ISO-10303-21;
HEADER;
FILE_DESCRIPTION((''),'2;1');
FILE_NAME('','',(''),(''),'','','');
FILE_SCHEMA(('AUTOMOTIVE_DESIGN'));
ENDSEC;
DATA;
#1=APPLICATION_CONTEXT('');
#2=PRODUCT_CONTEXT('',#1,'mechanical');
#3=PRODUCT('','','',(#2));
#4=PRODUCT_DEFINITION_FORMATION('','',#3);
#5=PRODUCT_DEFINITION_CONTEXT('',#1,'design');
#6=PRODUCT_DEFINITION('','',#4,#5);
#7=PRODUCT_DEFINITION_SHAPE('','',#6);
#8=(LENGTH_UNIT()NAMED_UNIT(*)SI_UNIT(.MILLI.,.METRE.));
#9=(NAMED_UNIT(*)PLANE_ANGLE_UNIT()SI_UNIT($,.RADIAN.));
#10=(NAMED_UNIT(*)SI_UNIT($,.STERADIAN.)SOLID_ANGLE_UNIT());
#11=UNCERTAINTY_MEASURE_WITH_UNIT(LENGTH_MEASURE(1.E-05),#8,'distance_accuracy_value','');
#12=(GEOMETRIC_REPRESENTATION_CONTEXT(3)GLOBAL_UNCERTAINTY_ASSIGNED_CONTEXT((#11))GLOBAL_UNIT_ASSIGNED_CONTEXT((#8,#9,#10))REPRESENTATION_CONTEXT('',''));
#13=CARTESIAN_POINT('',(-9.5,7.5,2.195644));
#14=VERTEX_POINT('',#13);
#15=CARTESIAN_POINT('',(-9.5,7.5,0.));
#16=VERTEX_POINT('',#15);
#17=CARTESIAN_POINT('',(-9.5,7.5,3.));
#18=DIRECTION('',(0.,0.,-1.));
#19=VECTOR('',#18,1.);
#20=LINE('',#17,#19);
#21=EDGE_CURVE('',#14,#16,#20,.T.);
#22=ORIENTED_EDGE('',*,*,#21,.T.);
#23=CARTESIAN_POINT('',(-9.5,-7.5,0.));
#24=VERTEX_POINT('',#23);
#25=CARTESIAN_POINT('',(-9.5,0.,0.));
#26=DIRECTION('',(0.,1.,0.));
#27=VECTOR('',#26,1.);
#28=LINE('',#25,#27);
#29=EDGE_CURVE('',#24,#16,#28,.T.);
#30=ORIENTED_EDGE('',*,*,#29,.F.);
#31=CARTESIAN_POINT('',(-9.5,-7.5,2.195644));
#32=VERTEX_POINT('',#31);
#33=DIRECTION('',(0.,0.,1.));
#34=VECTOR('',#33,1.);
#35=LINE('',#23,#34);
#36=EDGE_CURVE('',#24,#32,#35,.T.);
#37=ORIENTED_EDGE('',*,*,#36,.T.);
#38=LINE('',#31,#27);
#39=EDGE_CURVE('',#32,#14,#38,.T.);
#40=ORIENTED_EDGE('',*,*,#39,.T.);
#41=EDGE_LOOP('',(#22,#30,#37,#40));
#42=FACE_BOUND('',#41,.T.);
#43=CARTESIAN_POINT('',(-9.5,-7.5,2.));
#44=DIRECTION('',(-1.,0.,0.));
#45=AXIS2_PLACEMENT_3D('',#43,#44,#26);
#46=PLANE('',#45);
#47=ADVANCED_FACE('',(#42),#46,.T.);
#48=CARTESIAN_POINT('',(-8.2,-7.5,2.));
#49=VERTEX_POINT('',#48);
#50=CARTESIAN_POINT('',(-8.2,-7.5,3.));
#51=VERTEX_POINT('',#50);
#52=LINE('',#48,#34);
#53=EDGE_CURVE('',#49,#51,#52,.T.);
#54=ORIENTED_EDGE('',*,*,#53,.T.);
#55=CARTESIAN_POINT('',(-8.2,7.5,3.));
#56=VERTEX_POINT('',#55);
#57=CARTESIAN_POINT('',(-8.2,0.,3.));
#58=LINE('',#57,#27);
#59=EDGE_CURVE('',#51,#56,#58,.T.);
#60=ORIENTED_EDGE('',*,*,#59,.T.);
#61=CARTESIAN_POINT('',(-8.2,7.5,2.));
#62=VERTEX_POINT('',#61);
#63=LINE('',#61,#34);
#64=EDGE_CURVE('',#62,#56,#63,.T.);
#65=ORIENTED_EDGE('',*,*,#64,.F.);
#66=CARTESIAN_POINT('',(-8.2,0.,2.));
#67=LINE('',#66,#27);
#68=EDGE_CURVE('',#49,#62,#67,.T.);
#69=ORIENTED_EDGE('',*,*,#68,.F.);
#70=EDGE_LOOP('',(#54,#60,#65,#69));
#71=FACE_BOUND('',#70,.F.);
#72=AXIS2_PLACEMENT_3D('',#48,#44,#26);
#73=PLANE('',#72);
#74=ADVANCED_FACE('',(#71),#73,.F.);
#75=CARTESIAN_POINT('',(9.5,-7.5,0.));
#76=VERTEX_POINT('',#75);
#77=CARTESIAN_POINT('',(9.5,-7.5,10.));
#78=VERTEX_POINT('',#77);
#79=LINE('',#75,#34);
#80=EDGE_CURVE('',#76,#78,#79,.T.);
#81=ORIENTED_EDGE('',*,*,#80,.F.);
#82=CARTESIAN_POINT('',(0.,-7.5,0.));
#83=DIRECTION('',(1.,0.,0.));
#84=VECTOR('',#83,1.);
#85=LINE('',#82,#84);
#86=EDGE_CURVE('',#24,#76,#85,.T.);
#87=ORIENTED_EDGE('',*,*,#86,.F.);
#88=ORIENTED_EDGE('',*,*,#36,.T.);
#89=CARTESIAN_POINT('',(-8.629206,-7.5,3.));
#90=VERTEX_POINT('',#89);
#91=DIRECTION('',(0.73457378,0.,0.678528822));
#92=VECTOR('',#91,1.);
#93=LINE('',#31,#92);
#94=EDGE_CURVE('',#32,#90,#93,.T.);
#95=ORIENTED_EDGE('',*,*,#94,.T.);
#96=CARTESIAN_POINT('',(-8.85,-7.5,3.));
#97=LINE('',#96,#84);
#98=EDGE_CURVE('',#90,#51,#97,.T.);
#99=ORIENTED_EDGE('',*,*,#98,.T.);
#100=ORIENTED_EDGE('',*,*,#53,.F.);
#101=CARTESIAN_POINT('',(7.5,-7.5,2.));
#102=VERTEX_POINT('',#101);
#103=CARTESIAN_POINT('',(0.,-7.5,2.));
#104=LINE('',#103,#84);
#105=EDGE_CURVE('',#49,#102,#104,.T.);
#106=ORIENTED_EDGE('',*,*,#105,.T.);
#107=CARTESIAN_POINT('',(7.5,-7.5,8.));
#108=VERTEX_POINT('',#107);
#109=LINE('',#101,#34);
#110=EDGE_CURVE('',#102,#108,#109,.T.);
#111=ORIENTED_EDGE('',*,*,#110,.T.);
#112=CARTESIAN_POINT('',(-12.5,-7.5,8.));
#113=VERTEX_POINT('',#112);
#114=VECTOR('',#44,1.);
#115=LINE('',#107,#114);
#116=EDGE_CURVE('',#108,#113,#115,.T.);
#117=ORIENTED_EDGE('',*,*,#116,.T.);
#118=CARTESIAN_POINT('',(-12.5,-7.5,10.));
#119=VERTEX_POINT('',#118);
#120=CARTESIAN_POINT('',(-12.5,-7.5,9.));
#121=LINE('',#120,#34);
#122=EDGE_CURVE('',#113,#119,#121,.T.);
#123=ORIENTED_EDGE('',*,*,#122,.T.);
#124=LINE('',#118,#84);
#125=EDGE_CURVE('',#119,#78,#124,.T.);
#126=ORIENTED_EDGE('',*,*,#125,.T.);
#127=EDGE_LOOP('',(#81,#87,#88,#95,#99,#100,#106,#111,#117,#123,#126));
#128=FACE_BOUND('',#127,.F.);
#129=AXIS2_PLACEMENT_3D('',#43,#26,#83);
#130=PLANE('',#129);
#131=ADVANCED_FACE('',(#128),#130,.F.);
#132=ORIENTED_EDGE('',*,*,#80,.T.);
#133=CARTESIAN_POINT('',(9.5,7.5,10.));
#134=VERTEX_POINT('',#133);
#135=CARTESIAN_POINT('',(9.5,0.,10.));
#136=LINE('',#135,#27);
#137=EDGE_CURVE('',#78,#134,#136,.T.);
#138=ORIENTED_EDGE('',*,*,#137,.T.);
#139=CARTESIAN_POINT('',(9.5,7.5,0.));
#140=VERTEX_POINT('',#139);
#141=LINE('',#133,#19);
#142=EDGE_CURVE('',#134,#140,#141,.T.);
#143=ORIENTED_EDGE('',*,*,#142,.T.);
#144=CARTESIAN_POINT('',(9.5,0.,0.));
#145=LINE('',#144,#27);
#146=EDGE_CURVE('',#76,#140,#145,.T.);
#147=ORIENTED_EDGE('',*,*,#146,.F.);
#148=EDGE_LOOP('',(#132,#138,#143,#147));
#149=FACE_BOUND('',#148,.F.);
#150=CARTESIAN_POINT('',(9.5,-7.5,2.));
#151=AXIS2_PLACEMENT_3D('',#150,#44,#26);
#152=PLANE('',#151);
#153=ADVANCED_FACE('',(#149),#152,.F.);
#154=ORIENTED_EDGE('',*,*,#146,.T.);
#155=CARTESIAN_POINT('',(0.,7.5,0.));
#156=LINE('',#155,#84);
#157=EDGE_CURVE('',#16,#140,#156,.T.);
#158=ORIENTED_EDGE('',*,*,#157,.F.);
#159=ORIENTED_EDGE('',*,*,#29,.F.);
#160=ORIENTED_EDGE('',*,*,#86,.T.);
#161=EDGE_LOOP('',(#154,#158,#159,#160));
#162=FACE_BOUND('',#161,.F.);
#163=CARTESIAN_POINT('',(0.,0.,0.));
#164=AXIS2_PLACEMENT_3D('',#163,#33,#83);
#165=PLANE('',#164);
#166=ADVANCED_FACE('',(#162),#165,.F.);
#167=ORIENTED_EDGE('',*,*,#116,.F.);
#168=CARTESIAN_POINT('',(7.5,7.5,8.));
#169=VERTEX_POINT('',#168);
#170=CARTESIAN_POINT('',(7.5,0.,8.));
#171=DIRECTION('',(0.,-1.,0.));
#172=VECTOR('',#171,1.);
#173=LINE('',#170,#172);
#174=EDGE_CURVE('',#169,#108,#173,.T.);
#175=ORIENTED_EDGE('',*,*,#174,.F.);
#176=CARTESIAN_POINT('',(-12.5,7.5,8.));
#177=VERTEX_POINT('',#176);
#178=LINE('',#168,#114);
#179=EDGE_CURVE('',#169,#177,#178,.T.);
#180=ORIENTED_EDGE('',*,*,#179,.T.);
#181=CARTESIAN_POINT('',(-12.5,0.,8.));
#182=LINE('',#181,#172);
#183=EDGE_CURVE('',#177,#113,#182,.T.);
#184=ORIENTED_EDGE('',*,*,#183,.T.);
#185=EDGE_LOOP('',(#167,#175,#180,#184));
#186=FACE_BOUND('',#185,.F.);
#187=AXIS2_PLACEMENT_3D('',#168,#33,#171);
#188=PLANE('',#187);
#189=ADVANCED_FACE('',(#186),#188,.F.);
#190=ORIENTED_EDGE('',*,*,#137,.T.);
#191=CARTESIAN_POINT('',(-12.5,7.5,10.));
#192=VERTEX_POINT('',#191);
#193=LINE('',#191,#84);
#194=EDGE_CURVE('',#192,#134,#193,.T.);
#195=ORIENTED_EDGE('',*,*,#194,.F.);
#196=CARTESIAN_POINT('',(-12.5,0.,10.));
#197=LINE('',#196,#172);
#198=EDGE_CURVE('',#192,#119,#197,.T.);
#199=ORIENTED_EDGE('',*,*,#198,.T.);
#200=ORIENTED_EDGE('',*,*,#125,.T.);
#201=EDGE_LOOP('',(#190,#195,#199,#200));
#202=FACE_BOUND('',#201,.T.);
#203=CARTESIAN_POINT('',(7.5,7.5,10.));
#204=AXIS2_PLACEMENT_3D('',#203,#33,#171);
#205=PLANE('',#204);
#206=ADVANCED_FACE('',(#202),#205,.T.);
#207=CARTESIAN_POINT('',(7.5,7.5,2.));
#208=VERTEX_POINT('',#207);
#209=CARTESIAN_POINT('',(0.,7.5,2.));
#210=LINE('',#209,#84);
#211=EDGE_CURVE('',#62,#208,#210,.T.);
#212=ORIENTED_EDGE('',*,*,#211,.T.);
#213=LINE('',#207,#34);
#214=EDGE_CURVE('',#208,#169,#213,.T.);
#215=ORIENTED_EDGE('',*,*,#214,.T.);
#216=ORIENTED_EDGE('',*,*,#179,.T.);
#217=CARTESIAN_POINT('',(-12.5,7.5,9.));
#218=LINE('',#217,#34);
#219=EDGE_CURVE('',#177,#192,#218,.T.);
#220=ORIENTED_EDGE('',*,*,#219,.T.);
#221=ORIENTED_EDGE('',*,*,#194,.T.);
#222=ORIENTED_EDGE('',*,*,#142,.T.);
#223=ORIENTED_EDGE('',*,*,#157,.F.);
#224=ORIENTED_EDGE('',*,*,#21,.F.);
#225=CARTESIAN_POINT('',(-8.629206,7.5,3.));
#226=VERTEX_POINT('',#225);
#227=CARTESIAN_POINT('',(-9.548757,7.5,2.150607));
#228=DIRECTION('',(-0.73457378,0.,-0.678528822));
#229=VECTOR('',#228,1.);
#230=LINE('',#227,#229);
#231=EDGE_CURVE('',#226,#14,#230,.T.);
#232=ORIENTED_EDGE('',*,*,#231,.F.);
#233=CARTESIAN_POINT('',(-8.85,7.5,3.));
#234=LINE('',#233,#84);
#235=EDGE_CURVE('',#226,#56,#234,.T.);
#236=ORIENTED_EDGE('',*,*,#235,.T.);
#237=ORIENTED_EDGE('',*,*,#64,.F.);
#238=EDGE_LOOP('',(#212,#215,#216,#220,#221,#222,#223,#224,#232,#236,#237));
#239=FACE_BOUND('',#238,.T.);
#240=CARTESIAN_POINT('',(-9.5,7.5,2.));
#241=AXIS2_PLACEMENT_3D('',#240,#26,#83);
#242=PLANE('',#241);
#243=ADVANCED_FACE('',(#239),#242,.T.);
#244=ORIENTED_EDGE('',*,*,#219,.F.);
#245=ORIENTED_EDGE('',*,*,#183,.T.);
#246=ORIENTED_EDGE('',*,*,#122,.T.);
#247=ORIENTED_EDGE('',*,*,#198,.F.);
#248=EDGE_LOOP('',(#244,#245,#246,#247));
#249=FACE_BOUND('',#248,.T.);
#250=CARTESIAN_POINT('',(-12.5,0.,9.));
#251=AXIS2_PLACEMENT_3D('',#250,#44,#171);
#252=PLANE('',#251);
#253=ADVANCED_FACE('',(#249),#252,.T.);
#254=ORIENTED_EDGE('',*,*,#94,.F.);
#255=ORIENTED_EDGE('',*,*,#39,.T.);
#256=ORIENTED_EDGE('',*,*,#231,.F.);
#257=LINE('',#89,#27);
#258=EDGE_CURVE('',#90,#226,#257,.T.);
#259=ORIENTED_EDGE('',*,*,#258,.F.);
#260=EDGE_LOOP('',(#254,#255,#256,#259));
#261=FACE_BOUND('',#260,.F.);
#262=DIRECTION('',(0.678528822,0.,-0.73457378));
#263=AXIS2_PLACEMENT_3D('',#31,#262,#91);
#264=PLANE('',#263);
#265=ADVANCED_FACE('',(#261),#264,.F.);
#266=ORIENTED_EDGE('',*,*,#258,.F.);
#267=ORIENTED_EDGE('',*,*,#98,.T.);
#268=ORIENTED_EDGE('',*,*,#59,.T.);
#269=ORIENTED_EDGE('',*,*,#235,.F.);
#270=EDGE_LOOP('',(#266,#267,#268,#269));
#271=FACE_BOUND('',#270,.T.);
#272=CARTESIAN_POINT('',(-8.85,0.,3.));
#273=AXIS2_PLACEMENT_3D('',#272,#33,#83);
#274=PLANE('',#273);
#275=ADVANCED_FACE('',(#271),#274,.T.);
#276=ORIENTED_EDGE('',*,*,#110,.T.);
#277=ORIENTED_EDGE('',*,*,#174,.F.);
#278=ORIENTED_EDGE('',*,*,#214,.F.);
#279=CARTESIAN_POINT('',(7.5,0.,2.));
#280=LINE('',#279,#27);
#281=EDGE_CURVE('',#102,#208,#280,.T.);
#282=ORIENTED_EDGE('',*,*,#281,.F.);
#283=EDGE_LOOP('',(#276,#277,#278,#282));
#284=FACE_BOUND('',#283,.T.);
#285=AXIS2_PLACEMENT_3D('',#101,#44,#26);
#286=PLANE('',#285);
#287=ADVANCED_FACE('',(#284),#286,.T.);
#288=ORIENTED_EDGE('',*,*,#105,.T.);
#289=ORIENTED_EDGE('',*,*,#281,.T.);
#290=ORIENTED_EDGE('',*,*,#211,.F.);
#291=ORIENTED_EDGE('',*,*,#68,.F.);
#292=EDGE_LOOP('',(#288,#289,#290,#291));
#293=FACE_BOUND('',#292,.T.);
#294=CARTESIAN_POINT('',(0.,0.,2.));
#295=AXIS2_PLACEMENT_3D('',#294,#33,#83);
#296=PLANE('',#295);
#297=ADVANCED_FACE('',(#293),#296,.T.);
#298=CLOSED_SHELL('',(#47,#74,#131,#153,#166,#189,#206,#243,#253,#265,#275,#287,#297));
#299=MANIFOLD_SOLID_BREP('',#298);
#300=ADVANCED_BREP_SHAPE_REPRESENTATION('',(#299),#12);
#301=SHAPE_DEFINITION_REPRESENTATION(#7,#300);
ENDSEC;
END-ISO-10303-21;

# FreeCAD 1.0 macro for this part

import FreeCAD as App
import Part
import Sketcher
from FreeCAD import Vector

doc = App.newDocument("Part")
body = doc.addObject("PartDesign::Body", "Body")

sketch1 = body.newObject("Sketcher::SketchObject", "Sketch")
sketch1.AttachmentSupport = (doc.getObject("XY_Plane"), [""])
sketch1.MapMode = "FlatFace"
sketch1.addGeometry([
    Part.LineSegment(Vector(-10, 8, 0), Vector(-10, -8, 0)),
    Part.LineSegment(Vector(-10, -8, 0), Vector(10, -8, 0)),
    Part.LineSegment(Vector(10, -8, 0), Vector(10, 8, 0)),
    Part.LineSegment(Vector(10, 8, 0), Vector(-10, 8, 0)),
], False)
sketch1.addConstraint([
    Sketcher.Constraint("Coincident", 0, 2, 1, 1),
    Sketcher.Constraint("Coincident", 1, 2, 2, 1),
    Sketcher.Constraint("Coincident", 2, 2, 3, 1),
    Sketcher.Constraint("Coincident", 3, 2, 0, 1),
    Sketcher.Constraint("Vertical", 0),
    Sketcher.Constraint("Horizontal", 1),
    Sketcher.Constraint("Vertical", 2),
    Sketcher.Constraint("Horizontal", 3),
    Sketcher.Constraint("Symmetric", 0, 2, 2, 2, -1, 1),
    Sketcher.Constraint("DistanceX", 1, 1, 1, 2, 19.0),
    Sketcher.Constraint("DistanceY", 0, 2, 0, 1, 15.0),
])
pad1 = body.newObject("PartDesign::Pad", "Pad")
pad1.Profile = sketch1
pad1.Length = 2

sketch2 = body.newObject("Sketcher::SketchObject", "Sketch001")
sketch2.AttachmentSupport = (doc.getObject("XY_Plane"), [""])
sketch2.MapMode = "FlatFace"
sketch2.AttachmentOffset = App.Placement(Vector(0, 0, 2), App.Rotation())
sketch2.addGeometry([
    Part.LineSegment(Vector(7.5, 7.5, 0), Vector(7.5, -7.5, 0)),
    Part.LineSegment(Vector(7.5, -7.5, 0), Vector(9.5, -7.5, 0)),
    Part.LineSegment(Vector(9.5, -7.5, 0), Vector(9.5, 7.5, 0)),
    Part.LineSegment(Vector(9.5, 7.5, 0), Vector(7.5, 7.5, 0)),
], False)
sketch2.addConstraint([
    Sketcher.Constraint("Coincident", 0, 2, 1, 1),
    Sketcher.Constraint("Coincident", 1, 2, 2, 1),
    Sketcher.Constraint("Coincident", 2, 2, 3, 1),
    Sketcher.Constraint("Coincident", 3, 2, 0, 1),
    Sketcher.Constraint("Vertical", 0),
    Sketcher.Constraint("Horizontal", 1),
    Sketcher.Constraint("Vertical", 2),
    Sketcher.Constraint("Horizontal", 3),
    Sketcher.Constraint("DistanceX", 1, 1, 1, 2, 2.0),
    Sketcher.Constraint("DistanceY", 0, 2, 0, 1, 15.0),
    Sketcher.Constraint("DistanceX", -1, 1, 0, 2, 7.5),
    Sketcher.Constraint("DistanceY", 0, 2, -1, 1, 7.5),
])
pad2 = body.newObject("PartDesign::Pad", "Pad001")
pad2.Profile = sketch2
pad2.Length = 8

sketch3 = body.newObject("Sketcher::SketchObject", "Sketch002")
sketch3.AttachmentSupport = (doc.getObject("YZ_Plane"), [""])
sketch3.MapMode = "FlatFace"
sketch3.AttachmentOffset = App.Placement(Vector(0, 0, 7.5), App.Rotation())
sketch3.addGeometry([
    Part.LineSegment(Vector(7.5, 10, 0), Vector(7.5, 8, 0)),
    Part.LineSegment(Vector(7.5, 8, 0), Vector(-7.5, 8, 0)),
    Part.LineSegment(Vector(-7.5, 8, 0), Vector(-7.5, 10, 0)),
    Part.LineSegment(Vector(-7.5, 10, 0), Vector(7.5, 10, 0)),
], False)
sketch3.addConstraint([
    Sketcher.Constraint("Coincident", 0, 2, 1, 1),
    Sketcher.Constraint("Coincident", 1, 2, 2, 1),
    Sketcher.Constraint("Coincident", 2, 2, 3, 1),
    Sketcher.Constraint("Coincident", 3, 2, 0, 1),
    Sketcher.Constraint("Vertical", 0),
    Sketcher.Constraint("Horizontal", 1),
    Sketcher.Constraint("Vertical", 2),
    Sketcher.Constraint("Horizontal", 3),
    Sketcher.Constraint("DistanceX", 1, 2, 1, 1, 15.0),
    Sketcher.Constraint("DistanceY", 0, 2, 0, 1, 2.0),
    Sketcher.Constraint("DistanceY", -1, 1, 0, 2, 8.0),
    Sketcher.Constraint("DistanceX", -1, 1, 0, 2, 7.5),
])
pad3 = body.newObject("PartDesign::Pad", "Pad002")
pad3.Profile = sketch3
pad3.Length = 20
pad3.Reversed = True

sketch4 = body.newObject("Sketcher::SketchObject", "Sketch003")
sketch4.AttachmentSupport = (doc.getObject("XY_Plane"), [""])
sketch4.MapMode = "FlatFace"
sketch4.AttachmentOffset = App.Placement(Vector(0, 0, 2), App.Rotation())
sketch4.addGeometry([
    Part.LineSegment(Vector(-9.5, 7.5, 0), Vector(-9.5, -7.5, 0)),
    Part.LineSegment(Vector(-9.5, -7.5, 0), Vector(-8.2, -7.5, 0)),
    Part.LineSegment(Vector(-8.2, -7.5, 0), Vector(-8.2, 7.5, 0)),
    Part.LineSegment(Vector(-8.2, 7.5, 0), Vector(-9.5, 7.5, 0)),
], False)
sketch4.addConstraint([
    Sketcher.Constraint("Coincident", 0, 2, 1, 1),
    Sketcher.Constraint("Coincident", 1, 2, 2, 1),
    Sketcher.Constraint("Coincident", 2, 2, 3, 1),
    Sketcher.Constraint("Coincident", 3, 2, 0, 1),
    Sketcher.Constraint("Vertical", 0),
    Sketcher.Constraint("Horizontal", 1),
    Sketcher.Constraint("Vertical", 2),
    Sketcher.Constraint("Horizontal", 3),
    Sketcher.Constraint("DistanceY", 0, 2, 0, 1, 15.0),
    Sketcher.Constraint("DistanceX", 1, 1, 1, 2, 1.3),
    Sketcher.Constraint("DistanceX", 0, 2, -1, 1, 9.5),
    Sketcher.Constraint("DistanceY", 0, 2, -1, 1, 7.5),
])
pad4 = body.newObject("PartDesign::Pad", "Pad003")
pad4.Profile = sketch4
pad4.Length = 1

sketch5 = body.newObject("Sketcher::SketchObject", "Sketch004")
sketch5.AttachmentSupport = (doc.getObject("XZ_Plane"), [""])
sketch5.MapMode = "FlatFace"
sketch5.AttachmentOffset = App.Placement(Vector(0, 0, 7.5), App.Rotation())
sketch5.addGeometry([
    Part.LineSegment(Vector(-9.5, 3, 0), Vector(-9.5, 2.2, 0)),
    Part.LineSegment(Vector(-9.5, 2.2, 0), Vector(-8.6, 3, 0)),
    Part.LineSegment(Vector(-8.6, 3, 0), Vector(-9.5, 3, 0)),
], False)
sketch5.addConstraint([
    Sketcher.Constraint("Coincident", 0, 2, 1, 1),
    Sketcher.Constraint("Coincident", 1, 2, 2, 1),
    Sketcher.Constraint("Coincident", 2, 2, 0, 1),
    Sketcher.Constraint("Vertical", 0),
    Sketcher.Constraint("Horizontal", 2),
    Sketcher.Constraint("DistanceY", -1, 1, 1, 2, 3.0),
    Sketcher.Constraint("DistanceX", 0, 2, -1, 1, 9.5),
    Sketcher.Constraint("Distance", 1, 1.185441),
    Sketcher.Constraint("DistanceX", 2, 2, 2, 1, 0.870794),
])
pocket1 = body.newObject("PartDesign::Pocket", "Pocket")
pocket1.Profile = sketch5
pocket1.Length = 25

doc.recompute()
